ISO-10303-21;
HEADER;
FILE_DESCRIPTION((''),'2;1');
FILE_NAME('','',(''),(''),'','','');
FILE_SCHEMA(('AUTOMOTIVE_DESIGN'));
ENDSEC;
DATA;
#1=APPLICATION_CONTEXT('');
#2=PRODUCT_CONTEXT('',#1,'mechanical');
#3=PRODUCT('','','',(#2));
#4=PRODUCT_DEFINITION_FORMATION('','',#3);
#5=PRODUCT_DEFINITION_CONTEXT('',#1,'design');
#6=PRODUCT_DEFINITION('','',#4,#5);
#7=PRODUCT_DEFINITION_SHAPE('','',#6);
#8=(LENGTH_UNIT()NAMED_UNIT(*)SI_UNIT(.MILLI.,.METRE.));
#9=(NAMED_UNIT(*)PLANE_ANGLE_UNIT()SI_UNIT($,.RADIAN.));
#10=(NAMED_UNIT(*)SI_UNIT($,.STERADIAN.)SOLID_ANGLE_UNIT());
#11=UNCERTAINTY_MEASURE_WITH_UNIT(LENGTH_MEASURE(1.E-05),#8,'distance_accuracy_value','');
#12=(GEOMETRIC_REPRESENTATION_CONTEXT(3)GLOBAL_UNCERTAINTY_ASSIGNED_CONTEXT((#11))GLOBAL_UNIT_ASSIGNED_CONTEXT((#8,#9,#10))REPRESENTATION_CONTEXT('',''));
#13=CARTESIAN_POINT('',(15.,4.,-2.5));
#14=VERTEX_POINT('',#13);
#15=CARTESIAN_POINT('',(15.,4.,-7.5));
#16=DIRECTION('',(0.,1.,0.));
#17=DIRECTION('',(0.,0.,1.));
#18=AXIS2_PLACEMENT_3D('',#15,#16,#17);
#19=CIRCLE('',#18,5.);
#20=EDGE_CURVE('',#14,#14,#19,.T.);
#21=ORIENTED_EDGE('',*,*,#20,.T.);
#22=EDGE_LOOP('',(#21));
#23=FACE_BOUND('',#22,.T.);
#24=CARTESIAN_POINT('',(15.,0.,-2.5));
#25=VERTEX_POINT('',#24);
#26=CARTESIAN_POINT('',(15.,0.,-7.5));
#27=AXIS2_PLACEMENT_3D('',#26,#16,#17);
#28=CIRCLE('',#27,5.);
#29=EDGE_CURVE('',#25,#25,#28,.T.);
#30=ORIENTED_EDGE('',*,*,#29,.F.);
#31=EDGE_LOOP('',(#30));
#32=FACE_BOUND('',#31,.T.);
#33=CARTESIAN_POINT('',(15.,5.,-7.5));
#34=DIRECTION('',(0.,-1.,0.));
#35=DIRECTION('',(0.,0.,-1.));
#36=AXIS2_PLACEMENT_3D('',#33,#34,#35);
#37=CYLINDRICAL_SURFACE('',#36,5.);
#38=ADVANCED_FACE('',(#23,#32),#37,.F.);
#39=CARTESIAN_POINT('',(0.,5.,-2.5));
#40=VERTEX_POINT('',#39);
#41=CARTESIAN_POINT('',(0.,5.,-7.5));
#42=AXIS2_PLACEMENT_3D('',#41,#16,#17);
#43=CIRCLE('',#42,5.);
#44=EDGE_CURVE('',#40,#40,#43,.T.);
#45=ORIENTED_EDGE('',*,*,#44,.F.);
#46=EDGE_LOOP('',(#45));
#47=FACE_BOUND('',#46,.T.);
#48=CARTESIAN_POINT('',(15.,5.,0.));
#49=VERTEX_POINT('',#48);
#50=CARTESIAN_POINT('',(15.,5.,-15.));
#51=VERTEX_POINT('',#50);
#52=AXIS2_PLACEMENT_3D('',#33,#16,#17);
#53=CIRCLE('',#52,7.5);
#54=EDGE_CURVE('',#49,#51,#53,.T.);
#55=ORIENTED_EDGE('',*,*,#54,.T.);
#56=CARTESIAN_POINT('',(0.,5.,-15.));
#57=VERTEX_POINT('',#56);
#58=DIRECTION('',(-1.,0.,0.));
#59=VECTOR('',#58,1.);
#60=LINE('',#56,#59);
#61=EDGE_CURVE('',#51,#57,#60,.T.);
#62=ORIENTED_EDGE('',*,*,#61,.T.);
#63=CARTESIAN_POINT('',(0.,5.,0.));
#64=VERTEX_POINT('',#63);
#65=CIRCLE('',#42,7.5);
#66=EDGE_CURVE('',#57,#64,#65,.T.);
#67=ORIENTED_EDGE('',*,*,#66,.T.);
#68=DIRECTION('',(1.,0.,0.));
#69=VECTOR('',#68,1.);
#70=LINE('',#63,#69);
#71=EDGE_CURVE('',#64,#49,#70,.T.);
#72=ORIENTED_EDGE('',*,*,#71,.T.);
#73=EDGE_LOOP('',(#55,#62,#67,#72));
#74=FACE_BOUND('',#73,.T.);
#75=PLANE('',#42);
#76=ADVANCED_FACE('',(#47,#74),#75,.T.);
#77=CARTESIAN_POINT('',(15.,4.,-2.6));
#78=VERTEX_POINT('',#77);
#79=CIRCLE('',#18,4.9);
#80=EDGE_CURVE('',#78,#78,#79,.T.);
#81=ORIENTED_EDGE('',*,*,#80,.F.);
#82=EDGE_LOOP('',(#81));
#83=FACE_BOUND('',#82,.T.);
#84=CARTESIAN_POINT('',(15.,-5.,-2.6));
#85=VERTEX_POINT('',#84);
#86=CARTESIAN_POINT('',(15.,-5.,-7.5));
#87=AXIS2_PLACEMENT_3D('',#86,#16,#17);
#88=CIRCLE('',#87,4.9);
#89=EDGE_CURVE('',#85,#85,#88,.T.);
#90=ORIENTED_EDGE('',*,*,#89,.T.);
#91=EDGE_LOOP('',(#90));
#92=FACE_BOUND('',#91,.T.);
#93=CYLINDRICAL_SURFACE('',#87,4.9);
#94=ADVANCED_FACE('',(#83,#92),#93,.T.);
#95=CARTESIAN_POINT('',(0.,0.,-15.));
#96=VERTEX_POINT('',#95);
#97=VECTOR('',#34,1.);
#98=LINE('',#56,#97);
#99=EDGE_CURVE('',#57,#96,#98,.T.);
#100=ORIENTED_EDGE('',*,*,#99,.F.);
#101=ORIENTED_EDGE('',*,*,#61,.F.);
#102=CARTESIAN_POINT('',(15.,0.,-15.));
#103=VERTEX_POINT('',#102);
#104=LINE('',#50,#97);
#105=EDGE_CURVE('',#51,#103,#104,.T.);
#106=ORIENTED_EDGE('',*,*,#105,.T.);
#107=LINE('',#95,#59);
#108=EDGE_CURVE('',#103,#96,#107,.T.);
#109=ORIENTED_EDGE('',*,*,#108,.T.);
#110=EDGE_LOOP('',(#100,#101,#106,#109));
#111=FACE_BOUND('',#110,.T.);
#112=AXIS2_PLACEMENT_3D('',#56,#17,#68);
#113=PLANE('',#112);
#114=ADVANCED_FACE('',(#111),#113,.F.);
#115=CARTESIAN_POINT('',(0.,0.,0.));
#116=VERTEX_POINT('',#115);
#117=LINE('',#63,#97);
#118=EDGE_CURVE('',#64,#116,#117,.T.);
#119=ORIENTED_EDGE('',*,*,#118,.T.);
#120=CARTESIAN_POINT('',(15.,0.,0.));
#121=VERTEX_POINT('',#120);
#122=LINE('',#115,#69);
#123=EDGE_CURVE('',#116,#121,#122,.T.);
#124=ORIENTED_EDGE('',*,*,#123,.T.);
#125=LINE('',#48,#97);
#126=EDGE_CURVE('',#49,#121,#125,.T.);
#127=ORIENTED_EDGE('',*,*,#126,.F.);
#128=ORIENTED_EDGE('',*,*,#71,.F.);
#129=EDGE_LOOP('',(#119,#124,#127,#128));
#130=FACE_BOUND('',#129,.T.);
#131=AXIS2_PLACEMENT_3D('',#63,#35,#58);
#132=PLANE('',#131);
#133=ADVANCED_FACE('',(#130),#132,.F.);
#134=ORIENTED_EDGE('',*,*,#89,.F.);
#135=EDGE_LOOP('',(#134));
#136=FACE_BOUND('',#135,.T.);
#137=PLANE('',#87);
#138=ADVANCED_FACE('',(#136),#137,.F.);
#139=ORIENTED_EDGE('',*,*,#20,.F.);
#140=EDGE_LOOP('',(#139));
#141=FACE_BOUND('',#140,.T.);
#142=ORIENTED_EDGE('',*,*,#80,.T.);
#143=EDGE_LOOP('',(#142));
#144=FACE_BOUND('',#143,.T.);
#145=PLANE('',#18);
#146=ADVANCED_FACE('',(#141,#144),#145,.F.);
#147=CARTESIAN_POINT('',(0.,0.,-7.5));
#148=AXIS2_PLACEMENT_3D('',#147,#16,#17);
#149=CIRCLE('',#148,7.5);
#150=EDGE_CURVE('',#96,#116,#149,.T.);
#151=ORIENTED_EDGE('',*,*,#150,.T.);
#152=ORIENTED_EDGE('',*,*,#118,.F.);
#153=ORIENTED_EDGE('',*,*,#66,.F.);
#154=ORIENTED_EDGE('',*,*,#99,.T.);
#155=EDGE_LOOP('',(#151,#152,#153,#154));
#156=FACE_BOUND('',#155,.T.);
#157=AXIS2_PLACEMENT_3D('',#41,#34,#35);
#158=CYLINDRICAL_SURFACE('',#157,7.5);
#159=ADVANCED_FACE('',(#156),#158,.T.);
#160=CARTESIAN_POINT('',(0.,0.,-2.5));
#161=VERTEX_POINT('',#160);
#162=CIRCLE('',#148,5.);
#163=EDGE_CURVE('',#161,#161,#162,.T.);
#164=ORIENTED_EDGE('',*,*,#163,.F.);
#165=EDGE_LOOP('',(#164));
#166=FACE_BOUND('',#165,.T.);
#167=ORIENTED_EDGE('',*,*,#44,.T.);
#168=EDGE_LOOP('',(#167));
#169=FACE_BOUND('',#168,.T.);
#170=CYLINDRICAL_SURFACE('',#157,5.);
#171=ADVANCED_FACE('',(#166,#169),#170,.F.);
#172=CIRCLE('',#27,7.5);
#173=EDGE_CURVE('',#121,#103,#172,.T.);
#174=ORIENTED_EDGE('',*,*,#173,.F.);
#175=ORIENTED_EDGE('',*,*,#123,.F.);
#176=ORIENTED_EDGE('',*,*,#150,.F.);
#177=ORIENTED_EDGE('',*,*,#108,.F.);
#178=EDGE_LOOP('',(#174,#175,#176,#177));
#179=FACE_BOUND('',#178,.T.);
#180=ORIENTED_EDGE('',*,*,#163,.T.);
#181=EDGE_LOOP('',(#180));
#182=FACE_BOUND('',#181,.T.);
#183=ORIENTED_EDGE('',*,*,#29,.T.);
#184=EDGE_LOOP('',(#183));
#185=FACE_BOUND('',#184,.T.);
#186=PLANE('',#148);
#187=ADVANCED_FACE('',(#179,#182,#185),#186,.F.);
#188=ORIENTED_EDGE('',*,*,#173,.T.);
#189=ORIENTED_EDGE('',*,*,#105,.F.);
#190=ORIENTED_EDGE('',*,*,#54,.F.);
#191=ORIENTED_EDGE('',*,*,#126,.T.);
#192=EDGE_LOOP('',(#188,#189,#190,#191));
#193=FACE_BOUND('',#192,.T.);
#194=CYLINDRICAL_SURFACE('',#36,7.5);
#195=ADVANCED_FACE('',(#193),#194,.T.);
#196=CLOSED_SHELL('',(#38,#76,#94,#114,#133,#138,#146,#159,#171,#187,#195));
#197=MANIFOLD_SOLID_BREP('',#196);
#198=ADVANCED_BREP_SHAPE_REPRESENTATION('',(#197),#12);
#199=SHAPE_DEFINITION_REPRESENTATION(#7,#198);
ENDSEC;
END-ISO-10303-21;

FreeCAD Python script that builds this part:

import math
import FreeCAD as App
import Part
import Sketcher

V = App.Vector

doc = App.newDocument("Part")
params = doc.addObject("Spreadsheet::Sheet", "Params")
for row, (alias, value) in enumerate([
    ("sketch1_diameter", "10 mm"),
    ("sketch1_radius", "7.5 mm"),
    ("sketch1_width", "15 mm"),
    ("pad1_length", "5 mm"),
    ("sketch2_diameter", "9.8 mm"),
    ("pad2_length", "10 mm"),
    ("sketch3_diameter", "10 mm"),
    ("pad3_length", "1 mm"),
], start=1):
    params.set(f"A{row}", alias)
    params.set(f"B{row}", "=" + value)
    params.setAlias(f"B{row}", alias)

body = doc.addObject("PartDesign::Body", "Body")

sketch1 = doc.addObject("Sketcher::SketchObject", "Sketch")
body.addObject(sketch1)
sketch1.AttachmentSupport = (doc.XZ_Plane, [""])
sketch1.MapMode = "FlatFace"
sketch1.addGeometry([
    Part.LineSegment(V(0, 0, 0), V(15, 0, 0)),
    Part.ArcOfCircle(Part.Circle(V(15, -7.5, 0), V(0, 0, 1), 7.5), math.radians(-90), math.radians(90)),
    Part.LineSegment(V(15, -15, 0), V(0, -15, 0)),
    Part.ArcOfCircle(Part.Circle(V(0, -7.5, 0), V(0, 0, 1), 7.5), math.radians(90), math.radians(270)),
    Part.Circle(V(0, -7.5, 0), V(0, 0, 1), 5),
    Part.Circle(V(15, -7.5, 0), V(0, 0, 1), 5),
], False)
sketch1.addConstraint([
    Sketcher.Constraint("Tangent", 0, 2, 1, 2),
    Sketcher.Constraint("Tangent", 1, 1, 2, 1),
    Sketcher.Constraint("Tangent", 2, 2, 3, 2),
    Sketcher.Constraint("Tangent", 3, 1, 0, 1),
    Sketcher.Constraint("Horizontal", 0),
    Sketcher.Constraint("Horizontal", 2),
    Sketcher.Constraint("Coincident", 3, 1, -1, 1),
    Sketcher.Constraint("Coincident", 4, 3, 3, 3),
    Sketcher.Constraint("Coincident", 5, 3, 1, 3),
    Sketcher.Constraint("Equal", 4, 5),
    Sketcher.Constraint("Diameter", 4, 10.0),
    Sketcher.Constraint("Radius", 1, 7.5),
    Sketcher.Constraint("DistanceX", 0, 1, 0, 2, 15.0),
])
sketch1.setExpression("Constraints[10]", "Params.sketch1_diameter")
sketch1.setExpression("Constraints[11]", "Params.sketch1_radius")
sketch1.setExpression("Constraints[12]", "Params.sketch1_width")
pad1 = doc.addObject("PartDesign::Pad", "Pad")
body.addObject(pad1)
pad1.Profile = sketch1
pad1.setExpression("Length", "Params.pad1_length")
pad1.Reversed = True
body2 = doc.addObject("PartDesign::Body", "Body001")

sketch2 = doc.addObject("Sketcher::SketchObject", "Sketch001")
body2.addObject(sketch2)
sketch2.AttachmentSupport = (doc.getObject("XZ_Plane001"), [""])
sketch2.MapMode = "FlatFace"
sketch2.AttachmentOffset = App.Placement(V(0, 0, -5), App.Rotation())
sketch2.addGeometry(Part.Circle(V(15, -7.5, 0), V(0, 0, 1), 4.9), False)
sketch2.addConstraint([
    Sketcher.Constraint("Diameter", 0, 9.8),
    Sketcher.Constraint("DistanceX", -1, 1, 0, 3, 15.0),
    Sketcher.Constraint("DistanceY", 0, 3, -1, 1, 7.5),
])
sketch2.setExpression("Constraints[0]", "Params.sketch2_diameter")
pad2 = doc.addObject("PartDesign::Pad", "Pad001")
body2.addObject(pad2)
pad2.Profile = sketch2
pad2.setExpression("Length", "Params.pad2_length")
body.AllowCompound = True
doc.recompute()

boolean = doc.addObject("PartDesign::Boolean", "Boolean")
body.addObject(boolean)
boolean.Type = "Fuse"
boolean.addObjects([body2])

sketch3 = doc.addObject("Sketcher::SketchObject", "Sketch002")
body.addObject(sketch3)
sketch3.AttachmentSupport = (doc.XZ_Plane, [""])
sketch3.MapMode = "FlatFace"
sketch3.AttachmentOffset = App.Placement(V(0, 0, -4), App.Rotation())
sketch3.addGeometry(Part.Circle(V(15, -7.5, 0), V(0, 0, 1), 5), False)
sketch3.addConstraint([
    Sketcher.Constraint("Diameter", 0, 10.0),
    Sketcher.Constraint("DistanceX", -1, 1, 0, 3, 15.0),
    Sketcher.Constraint("DistanceY", 0, 3, -1, 1, 7.5),
])
sketch3.setExpression("Constraints[0]", "Params.sketch3_diameter")
pad3 = doc.addObject("PartDesign::Pad", "Pad002")
body.addObject(pad3)
pad3.Profile = sketch3
pad3.setExpression("Length", "Params.pad3_length")
pad3.Reversed = True

doc.recompute()
